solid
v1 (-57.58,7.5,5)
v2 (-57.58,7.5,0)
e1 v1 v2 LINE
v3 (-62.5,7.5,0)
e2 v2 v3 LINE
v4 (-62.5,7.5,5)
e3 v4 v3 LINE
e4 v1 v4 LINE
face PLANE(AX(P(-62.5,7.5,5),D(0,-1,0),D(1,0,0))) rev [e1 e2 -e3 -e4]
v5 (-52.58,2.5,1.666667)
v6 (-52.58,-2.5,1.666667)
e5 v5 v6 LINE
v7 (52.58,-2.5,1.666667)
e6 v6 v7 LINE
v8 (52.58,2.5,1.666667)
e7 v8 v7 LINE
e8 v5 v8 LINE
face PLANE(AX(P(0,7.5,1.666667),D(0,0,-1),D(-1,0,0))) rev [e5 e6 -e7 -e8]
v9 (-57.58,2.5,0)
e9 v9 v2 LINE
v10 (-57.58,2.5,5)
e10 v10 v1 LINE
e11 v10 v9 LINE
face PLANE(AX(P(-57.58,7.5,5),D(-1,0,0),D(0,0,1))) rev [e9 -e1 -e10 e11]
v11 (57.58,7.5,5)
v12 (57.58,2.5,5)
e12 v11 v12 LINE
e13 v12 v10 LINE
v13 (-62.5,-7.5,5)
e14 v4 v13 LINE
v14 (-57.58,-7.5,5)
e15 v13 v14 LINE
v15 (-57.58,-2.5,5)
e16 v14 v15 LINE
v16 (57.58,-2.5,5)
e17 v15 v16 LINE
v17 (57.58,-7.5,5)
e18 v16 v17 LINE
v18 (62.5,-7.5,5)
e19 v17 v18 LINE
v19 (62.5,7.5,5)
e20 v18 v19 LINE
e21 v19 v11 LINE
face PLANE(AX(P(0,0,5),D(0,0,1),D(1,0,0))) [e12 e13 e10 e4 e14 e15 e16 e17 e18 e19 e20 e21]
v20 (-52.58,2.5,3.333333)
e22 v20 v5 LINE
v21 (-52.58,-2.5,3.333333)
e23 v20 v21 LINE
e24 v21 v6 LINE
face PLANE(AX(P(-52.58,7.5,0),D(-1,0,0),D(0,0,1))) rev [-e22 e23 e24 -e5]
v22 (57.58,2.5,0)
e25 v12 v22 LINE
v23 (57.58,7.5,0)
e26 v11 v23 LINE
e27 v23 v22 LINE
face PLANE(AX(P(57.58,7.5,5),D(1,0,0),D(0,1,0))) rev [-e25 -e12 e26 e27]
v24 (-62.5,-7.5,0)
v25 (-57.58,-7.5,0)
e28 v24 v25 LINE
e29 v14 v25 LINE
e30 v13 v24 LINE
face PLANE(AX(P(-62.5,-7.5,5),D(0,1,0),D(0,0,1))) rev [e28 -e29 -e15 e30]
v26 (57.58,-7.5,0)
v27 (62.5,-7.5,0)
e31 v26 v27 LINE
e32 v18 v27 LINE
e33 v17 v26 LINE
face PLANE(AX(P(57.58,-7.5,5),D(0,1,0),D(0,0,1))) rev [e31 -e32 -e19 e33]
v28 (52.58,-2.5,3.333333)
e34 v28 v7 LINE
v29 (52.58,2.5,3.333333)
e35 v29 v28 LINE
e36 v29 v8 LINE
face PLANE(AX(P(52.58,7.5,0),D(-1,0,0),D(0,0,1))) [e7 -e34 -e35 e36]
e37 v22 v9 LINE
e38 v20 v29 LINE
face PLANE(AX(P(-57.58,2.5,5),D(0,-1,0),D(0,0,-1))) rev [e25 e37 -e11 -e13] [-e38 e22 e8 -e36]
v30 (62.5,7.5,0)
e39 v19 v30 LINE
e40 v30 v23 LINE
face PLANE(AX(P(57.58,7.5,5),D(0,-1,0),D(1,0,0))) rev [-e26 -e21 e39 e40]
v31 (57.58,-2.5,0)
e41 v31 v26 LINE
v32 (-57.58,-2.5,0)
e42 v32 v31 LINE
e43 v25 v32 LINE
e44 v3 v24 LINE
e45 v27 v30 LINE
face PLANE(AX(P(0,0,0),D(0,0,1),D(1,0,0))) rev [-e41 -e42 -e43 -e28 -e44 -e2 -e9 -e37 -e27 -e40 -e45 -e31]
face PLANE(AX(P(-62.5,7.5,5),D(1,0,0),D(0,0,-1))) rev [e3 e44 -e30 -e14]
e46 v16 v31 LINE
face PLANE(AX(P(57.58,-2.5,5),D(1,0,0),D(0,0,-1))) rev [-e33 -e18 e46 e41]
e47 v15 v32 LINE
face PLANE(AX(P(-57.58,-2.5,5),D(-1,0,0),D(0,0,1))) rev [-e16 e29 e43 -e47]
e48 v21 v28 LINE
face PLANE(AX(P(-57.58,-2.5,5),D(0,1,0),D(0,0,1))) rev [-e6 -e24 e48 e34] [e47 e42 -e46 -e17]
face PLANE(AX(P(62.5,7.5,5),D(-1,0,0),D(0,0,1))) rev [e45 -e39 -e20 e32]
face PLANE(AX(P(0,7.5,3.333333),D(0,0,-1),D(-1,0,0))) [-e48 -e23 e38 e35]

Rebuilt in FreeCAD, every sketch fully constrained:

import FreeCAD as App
import Part
import Sketcher

V = App.Vector
Q = App.Units.Quantity


def add_polygon(sketch, points):
    """Adds a closed chain of lines whose ends are joined by coincident constraints."""
    first, n = sketch.GeometryCount, len(points)
    for a, b in zip(points, points[1:] + points[:1]):
        sketch.addGeometry(Part.LineSegment(App.Vector(*a, 0), App.Vector(*b, 0)), False)
    for i in range(n):
        sketch.addConstraint(Sketcher.Constraint("Coincident", first + i, 2, first + (i + 1) % n, 1))

doc = App.newDocument("Part")
body = doc.addObject("PartDesign::Body", "Body")

# Sketch on XY plane
sketch1 = body.newObject("Sketcher::SketchObject", "Sketch")
sketch1.AttachmentSupport = (doc.getObject("XY_Plane"), [""])
sketch1.MapMode = "FlatFace"
add_polygon(sketch1, [(-57.58, 2.5), (-57.58, 7.5), (-62.5, 7.5), (-62.5, -7.5), (-57.58, -7.5), (-57.58, -2.5), (57.58, -2.5), (57.58, -7.5), (62.5, -7.5), (62.5, 7.5), (57.58, 7.5), (57.58, 2.5)])  # lines 0-11
sketch1.addConstraint(Sketcher.Constraint("Vertical", 0))
sketch1.addConstraint(Sketcher.Constraint("Horizontal", 1))
sketch1.addConstraint(Sketcher.Constraint("Vertical", 2))
sketch1.addConstraint(Sketcher.Constraint("Horizontal", 3))
sketch1.addConstraint(Sketcher.Constraint("Vertical", 4))
sketch1.addConstraint(Sketcher.Constraint("Horizontal", 5))
sketch1.addConstraint(Sketcher.Constraint("Vertical", 6))
sketch1.addConstraint(Sketcher.Constraint("Horizontal", 7))
sketch1.addConstraint(Sketcher.Constraint("Vertical", 8))
sketch1.addConstraint(Sketcher.Constraint("Horizontal", 9))
sketch1.addConstraint(Sketcher.Constraint("Vertical", 10))
sketch1.addConstraint(Sketcher.Constraint("Horizontal", 11))
sketch1.addConstraint(Sketcher.Constraint("Symmetric", 0, 2, 6, 2, -1, 1))
sketch1.addConstraint(Sketcher.Constraint("Symmetric", 2, 2, 8, 2, -1, 1))
sketch1.addConstraint(Sketcher.Constraint("Symmetric", 4, 2, 10, 2, -1, 1))
sketch1.addConstraint(Sketcher.Constraint("Symmetric", 3, 2, 6, 2, -2))
sketch1.addConstraint(Sketcher.Constraint("DistanceY", 0, 1, 0, 2, Q("5 mm")))
sketch1.addConstraint(Sketcher.Constraint("DistanceY", 2, 2, 2, 1, Q("15 mm")))
sketch1.addConstraint(Sketcher.Constraint("DistanceX", 1, 2, 1, 1, Q("4.92 mm")))
sketch1.addConstraint(Sketcher.Constraint("DistanceX", 5, 1, 5, 2, Q("115.16 mm")))
pad1 = body.newObject("PartDesign::Pad", "Pad")
pad1.Profile = sketch1
pad1.Length = 5

# Sketch on XZ plane
sketch2 = body.newObject("Sketcher::SketchObject", "Sketch001")
sketch2.AttachmentSupport = (doc.getObject("XZ_Plane"), [""])
sketch2.MapMode = "FlatFace"
sketch2.AttachmentOffset = App.Placement(V(0, 0, 2.5), App.Rotation())
add_polygon(sketch2, [(-52.58, 3.333333), (-52.58, 1.666667), (52.58, 1.666667), (52.58, 3.333333)])  # lines 0-3
sketch2.addConstraint(Sketcher.Constraint("Vertical", 0))
sketch2.addConstraint(Sketcher.Constraint("Horizontal", 1))
sketch2.addConstraint(Sketcher.Constraint("Vertical", 2))
sketch2.addConstraint(Sketcher.Constraint("Horizontal", 3))
sketch2.addConstraint(Sketcher.Constraint("DistanceX", 1, 1, 1, 2, Q("105.16 mm")))
sketch2.addConstraint(Sketcher.Constraint("DistanceX", 0, 2, -1, 1, Q("52.58 mm")))
sketch2.addConstraint(Sketcher.Constraint("DistanceY", 0, 2, 0, 1, Q("1.666667 mm")))
sketch2.addConstraint(Sketcher.Constraint("DistanceY", -1, 1, 0, 2, Q("1.666667 mm")))
pocket1 = body.newObject("PartDesign::Pocket", "Pocket")
pocket1.Profile = sketch2
pocket1.Type = "ThroughAll"

doc.recompute()
